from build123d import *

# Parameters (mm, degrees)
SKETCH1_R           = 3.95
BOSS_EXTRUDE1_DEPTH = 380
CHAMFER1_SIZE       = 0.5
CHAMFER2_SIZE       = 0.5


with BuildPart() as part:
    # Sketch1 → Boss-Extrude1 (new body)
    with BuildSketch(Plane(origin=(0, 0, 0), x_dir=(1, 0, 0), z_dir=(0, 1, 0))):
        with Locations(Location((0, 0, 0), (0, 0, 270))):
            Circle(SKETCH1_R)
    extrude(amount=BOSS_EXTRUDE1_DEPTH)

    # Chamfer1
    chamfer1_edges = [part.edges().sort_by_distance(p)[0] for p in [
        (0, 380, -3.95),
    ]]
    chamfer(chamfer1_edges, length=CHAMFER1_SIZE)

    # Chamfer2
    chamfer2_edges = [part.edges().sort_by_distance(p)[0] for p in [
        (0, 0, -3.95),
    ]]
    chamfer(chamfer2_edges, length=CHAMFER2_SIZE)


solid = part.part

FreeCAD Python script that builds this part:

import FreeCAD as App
import Part
import Sketcher
from FreeCAD import Vector
Q = App.Units.Quantity


def edges_at(feature, points):
    """Names of the edges that pass closest to the given points."""
    edges = feature.Shape.Edges
    near = lambda p: min(range(len(edges)), key=lambda i: edges[i].distToShape(Part.Vertex(*p))[0])
    return sorted({f"Edge{near(p) + 1}" for p in points})

doc = App.newDocument("Part")
body = doc.addObject("PartDesign::Body", "Body")

# Sketch on XZ plane
sketch1 = body.newObject("Sketcher::SketchObject", "Sketch")
sketch1.AttachmentSupport = (doc.getObject("XZ_Plane"), [""])
sketch1.MapMode = "FlatFace"
sketch1.addGeometry(Part.Circle(Vector(0, 0, 0), Vector(0, 0, 1), 4), False)
sketch1.addConstraint([
    Sketcher.Constraint("Coincident", 0, 3, -1, 1),
    Sketcher.Constraint("Diameter", 0, Q("7.9 mm")),
])
pad1 = body.newObject("PartDesign::Pad", "Pad")
pad1.Profile = sketch1
pad1.Length = 380
pad1.Reversed = True
doc.recompute()

chamfer = body.newObject("PartDesign::Chamfer", "Chamfer")
chamfer.Base = (pad1, edges_at(pad1, [(0, 380, -3.95)]))
chamfer.Size = 0.5
doc.recompute()

chamfer2 = body.newObject("PartDesign::Chamfer", "Chamfer001")
chamfer2.Base = (chamfer, edges_at(chamfer, [(0, 0, -3.95)]))
chamfer2.Size = 0.5

doc.recompute()
